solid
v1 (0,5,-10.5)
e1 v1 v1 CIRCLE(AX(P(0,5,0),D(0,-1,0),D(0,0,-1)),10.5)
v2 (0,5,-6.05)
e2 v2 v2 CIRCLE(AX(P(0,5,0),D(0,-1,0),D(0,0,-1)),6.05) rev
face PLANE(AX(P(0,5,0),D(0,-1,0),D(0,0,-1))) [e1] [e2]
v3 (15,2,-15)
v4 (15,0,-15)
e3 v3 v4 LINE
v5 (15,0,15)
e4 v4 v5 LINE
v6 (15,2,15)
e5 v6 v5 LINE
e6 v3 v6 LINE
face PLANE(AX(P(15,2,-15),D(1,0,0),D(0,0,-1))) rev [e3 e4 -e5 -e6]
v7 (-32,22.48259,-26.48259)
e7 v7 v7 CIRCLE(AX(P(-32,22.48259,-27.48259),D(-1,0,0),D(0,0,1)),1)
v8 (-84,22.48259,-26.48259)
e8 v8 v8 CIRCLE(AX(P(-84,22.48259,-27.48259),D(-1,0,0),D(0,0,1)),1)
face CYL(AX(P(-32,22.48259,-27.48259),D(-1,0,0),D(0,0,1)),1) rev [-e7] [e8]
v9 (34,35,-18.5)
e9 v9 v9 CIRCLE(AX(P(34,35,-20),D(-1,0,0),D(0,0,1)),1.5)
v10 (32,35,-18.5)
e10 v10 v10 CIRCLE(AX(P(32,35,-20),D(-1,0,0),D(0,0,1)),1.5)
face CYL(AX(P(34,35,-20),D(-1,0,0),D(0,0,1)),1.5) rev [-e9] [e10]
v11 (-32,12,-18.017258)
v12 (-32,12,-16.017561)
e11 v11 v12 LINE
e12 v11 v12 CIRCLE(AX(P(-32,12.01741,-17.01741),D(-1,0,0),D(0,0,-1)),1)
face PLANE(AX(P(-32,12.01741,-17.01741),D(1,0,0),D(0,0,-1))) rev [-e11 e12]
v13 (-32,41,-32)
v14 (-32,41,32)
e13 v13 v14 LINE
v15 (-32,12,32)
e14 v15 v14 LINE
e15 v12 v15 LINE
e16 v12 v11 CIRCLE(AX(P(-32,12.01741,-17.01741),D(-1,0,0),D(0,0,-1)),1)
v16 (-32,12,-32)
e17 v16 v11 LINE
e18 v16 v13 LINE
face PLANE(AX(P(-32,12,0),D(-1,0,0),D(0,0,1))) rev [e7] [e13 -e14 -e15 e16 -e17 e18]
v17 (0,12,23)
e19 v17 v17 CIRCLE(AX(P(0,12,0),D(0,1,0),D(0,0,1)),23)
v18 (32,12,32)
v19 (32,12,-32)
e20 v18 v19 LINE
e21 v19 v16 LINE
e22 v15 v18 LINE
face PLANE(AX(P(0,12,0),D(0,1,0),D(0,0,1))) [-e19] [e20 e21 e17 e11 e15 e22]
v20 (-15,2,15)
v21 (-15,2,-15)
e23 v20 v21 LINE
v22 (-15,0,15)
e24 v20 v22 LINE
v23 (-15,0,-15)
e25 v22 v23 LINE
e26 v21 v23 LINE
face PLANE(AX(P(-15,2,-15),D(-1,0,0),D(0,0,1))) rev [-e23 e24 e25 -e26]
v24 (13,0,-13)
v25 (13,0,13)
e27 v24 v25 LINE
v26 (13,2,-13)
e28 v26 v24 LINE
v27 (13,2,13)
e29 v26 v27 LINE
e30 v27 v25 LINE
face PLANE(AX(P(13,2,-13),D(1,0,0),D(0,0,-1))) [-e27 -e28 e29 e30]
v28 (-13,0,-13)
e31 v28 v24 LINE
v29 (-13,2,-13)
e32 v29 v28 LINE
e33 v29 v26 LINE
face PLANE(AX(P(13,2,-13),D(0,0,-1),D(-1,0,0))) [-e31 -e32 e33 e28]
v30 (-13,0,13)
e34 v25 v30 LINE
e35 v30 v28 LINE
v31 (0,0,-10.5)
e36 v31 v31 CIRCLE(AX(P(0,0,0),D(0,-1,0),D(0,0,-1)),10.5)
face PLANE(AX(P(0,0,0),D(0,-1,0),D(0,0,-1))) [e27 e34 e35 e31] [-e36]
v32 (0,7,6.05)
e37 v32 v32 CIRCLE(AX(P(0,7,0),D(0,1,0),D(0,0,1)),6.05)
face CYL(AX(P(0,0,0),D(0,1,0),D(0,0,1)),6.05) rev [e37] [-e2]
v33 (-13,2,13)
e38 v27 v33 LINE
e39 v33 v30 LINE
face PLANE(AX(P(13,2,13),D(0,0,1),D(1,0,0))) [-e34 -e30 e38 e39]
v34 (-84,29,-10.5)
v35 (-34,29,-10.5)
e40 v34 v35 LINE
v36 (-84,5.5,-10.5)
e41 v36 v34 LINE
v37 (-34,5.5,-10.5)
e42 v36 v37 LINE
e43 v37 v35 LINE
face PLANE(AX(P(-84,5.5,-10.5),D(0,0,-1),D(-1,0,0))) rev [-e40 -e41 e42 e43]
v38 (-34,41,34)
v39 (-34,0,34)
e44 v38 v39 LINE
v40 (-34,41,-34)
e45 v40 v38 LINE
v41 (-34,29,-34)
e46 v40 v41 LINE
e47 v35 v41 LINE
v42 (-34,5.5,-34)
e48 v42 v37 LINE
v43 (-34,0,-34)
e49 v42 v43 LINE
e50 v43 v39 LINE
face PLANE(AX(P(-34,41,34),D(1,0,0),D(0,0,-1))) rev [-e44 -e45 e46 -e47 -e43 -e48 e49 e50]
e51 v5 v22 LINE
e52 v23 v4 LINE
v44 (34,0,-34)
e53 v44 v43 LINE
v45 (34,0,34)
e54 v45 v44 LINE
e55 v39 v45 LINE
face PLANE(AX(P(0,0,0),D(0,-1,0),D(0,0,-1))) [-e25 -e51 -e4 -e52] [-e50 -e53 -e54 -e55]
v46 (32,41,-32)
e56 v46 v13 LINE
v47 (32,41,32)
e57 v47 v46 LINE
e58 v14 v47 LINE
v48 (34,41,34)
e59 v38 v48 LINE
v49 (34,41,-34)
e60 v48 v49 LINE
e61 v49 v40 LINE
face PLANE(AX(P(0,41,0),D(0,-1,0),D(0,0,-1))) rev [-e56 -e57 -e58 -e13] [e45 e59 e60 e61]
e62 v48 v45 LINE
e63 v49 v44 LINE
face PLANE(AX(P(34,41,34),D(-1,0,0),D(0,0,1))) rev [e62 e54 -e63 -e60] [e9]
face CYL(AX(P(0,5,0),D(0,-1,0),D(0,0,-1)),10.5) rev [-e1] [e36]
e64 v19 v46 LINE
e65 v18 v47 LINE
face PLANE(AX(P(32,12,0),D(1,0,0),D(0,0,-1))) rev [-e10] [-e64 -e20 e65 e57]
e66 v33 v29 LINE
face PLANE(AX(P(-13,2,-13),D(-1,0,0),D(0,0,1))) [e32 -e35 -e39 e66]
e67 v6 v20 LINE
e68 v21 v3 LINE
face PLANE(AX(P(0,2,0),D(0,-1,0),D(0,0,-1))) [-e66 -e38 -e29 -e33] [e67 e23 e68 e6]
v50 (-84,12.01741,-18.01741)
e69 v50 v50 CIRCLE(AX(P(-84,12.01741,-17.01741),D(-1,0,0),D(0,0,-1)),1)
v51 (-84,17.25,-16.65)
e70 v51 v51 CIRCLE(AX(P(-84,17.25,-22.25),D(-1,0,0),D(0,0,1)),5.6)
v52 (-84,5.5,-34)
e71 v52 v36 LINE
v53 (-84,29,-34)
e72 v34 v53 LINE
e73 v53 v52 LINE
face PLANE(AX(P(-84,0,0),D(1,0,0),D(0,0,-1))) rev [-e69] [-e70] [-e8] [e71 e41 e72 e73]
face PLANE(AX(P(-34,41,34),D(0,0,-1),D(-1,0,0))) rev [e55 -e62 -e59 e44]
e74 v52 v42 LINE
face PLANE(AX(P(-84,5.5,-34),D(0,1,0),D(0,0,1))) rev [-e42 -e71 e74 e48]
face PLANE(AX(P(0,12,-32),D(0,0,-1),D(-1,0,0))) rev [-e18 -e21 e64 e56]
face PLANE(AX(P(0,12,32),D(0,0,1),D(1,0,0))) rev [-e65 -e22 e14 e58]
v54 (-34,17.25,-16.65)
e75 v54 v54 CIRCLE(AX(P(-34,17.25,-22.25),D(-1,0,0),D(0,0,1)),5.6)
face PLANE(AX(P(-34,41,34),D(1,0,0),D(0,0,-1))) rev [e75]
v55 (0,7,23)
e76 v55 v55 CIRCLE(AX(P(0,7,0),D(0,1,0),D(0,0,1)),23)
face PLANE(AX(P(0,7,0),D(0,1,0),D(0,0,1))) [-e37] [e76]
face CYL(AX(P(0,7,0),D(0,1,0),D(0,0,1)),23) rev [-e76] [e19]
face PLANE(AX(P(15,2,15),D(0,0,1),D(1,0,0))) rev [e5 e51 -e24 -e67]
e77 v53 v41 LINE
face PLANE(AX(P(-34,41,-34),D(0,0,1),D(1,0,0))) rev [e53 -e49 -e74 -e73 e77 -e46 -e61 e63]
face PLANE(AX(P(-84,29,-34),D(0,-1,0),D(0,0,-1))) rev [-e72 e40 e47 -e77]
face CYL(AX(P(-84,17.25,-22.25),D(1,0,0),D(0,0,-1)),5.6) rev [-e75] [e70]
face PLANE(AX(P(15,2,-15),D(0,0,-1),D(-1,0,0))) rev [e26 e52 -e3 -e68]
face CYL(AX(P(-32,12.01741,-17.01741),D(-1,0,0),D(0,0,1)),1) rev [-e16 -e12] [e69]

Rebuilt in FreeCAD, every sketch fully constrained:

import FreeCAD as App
import Part
import Sketcher
from FreeCAD import Vector
Q = App.Units.Quantity

doc = App.newDocument("Part")
body = doc.addObject("PartDesign::Body", "Body")

sketch1 = body.newObject("Sketcher::SketchObject", "Sketch")
sketch1.AttachmentSupport = (doc.getObject("XZ_Plane"), [""])
sketch1.MapMode = "FlatFace"
sketch1.addGeometry([
    Part.LineSegment(Vector(-34, -34, 0), Vector(-34, 34, 0)),
    Part.LineSegment(Vector(-34, 34, 0), Vector(34, 34, 0)),
    Part.LineSegment(Vector(34, 34, 0), Vector(34, -34, 0)),
    Part.LineSegment(Vector(34, -34, 0), Vector(-34, -34, 0)),
], False)
sketch1.addConstraint([
    Sketcher.Constraint("Coincident", 0, 2, 1, 1),
    Sketcher.Constraint("Coincident", 1, 2, 2, 1),
    Sketcher.Constraint("Coincident", 2, 2, 3, 1),
    Sketcher.Constraint("Coincident", 3, 2, 0, 1),
    Sketcher.Constraint("Vertical", 0),
    Sketcher.Constraint("Horizontal", 1),
    Sketcher.Constraint("Vertical", 2),
    Sketcher.Constraint("Horizontal", 3),
    Sketcher.Constraint("Symmetric", 0, 2, 2, 2, -1, 1),
    Sketcher.Constraint("Equal", 3, 0),
    Sketcher.Constraint("DistanceX", 1, 1, 1, 2, Q("68 mm")),
])
pad1 = body.newObject("PartDesign::Pad", "Pad")
pad1.Profile = sketch1
pad1.Length = 41
pad1.Reversed = True

sketch2 = body.newObject("Sketcher::SketchObject", "Sketch001")
sketch2.AttachmentSupport = (doc.getObject("XZ_Plane"), [""])
sketch2.MapMode = "FlatFace"
sketch2.AttachmentOffset = App.Placement(Vector(0, 0, -41), App.Rotation())
sketch2.addGeometry([
    Part.LineSegment(Vector(-32, -32, 0), Vector(-32, 32, 0)),
    Part.LineSegment(Vector(-32, 32, 0), Vector(32, 32, 0)),
    Part.LineSegment(Vector(32, 32, 0), Vector(32, -32, 0)),
    Part.LineSegment(Vector(32, -32, 0), Vector(-32, -32, 0)),
], False)
sketch2.addConstraint([
    Sketcher.Constraint("Coincident", 0, 2, 1, 1),
    Sketcher.Constraint("Coincident", 1, 2, 2, 1),
    Sketcher.Constraint("Coincident", 2, 2, 3, 1),
    Sketcher.Constraint("Coincident", 3, 2, 0, 1),
    Sketcher.Constraint("Vertical", 0),
    Sketcher.Constraint("Horizontal", 1),
    Sketcher.Constraint("Vertical", 2),
    Sketcher.Constraint("Horizontal", 3),
    Sketcher.Constraint("Symmetric", 0, 2, 2, 2, -1, 1),
    Sketcher.Constraint("Equal", 3, 0),
    Sketcher.Constraint("DistanceX", 1, 1, 1, 2, Q("64 mm")),
])
pocket1 = body.newObject("PartDesign::Pocket", "Pocket")
pocket1.Profile = sketch2
pocket1.Length = 29
pocket1.Reversed = True

sketch3 = body.newObject("Sketcher::SketchObject", "Sketch002")
sketch3.AttachmentSupport = (doc.getObject("XZ_Plane"), [""])
sketch3.MapMode = "FlatFace"
sketch3.AttachmentOffset = App.Placement(Vector(0, 0, -12), App.Rotation())
sketch3.addGeometry(Part.Circle(Vector(0, 0, 0), Vector(0, 0, 1), 23), False)
sketch3.addConstraint([
    Sketcher.Constraint("Coincident", 0, 3, -1, 1),
    Sketcher.Constraint("Diameter", 0, Q("46 mm")),
])
pocket2 = body.newObject("PartDesign::Pocket", "Pocket001")
pocket2.Profile = sketch3
pocket2.Length = 5
pocket2.Reversed = True

sketch4 = body.newObject("Sketcher::SketchObject", "Sketch003")
sketch4.AttachmentSupport = (doc.getObject("XZ_Plane"), [""])
sketch4.MapMode = "FlatFace"
sketch4.AttachmentOffset = App.Placement(Vector(0, 0, -7), App.Rotation())
sketch4.addGeometry(Part.Circle(Vector(0, 0, 0), Vector(0, 0, 1), 6.05), False)
sketch4.addConstraint([
    Sketcher.Constraint("Coincident", 0, 3, -1, 1),
    Sketcher.Constraint("Diameter", 0, Q("12.1 mm")),
])
pocket3 = body.newObject("PartDesign::Pocket", "Pocket002")
pocket3.Profile = sketch4
pocket3.Type = "ThroughAll"
pocket3.Reversed = True

sketch5 = body.newObject("Sketcher::SketchObject", "Sketch004")
sketch5.AttachmentSupport = (doc.getObject("XZ_Plane"), [""])
sketch5.MapMode = "FlatFace"
sketch5.addGeometry(Part.Circle(Vector(0, 0, 0), Vector(0, 0, 1), 10.5), False)
sketch5.addConstraint([
    Sketcher.Constraint("Coincident", 0, 3, -1, 1),
    Sketcher.Constraint("Diameter", 0, Q("21 mm")),
])
pocket4 = body.newObject("PartDesign::Pocket", "Pocket003")
pocket4.Profile = sketch5
pocket4.Length = 5

sketch6 = body.newObject("Sketcher::SketchObject", "Sketch005")
sketch6.AttachmentSupport = (doc.getObject("XZ_Plane"), [""])
sketch6.MapMode = "FlatFace"
sketch6.addGeometry([
    Part.LineSegment(Vector(15, -15, 0), Vector(15, 15, 0)),
    Part.LineSegment(Vector(15, 15, 0), Vector(-15, 15, 0)),
    Part.LineSegment(Vector(-15, 15, 0), Vector(-15, -15, 0)),
    Part.LineSegment(Vector(-15, -15, 0), Vector(15, -15, 0)),
    Part.LineSegment(Vector(-13, 13, 0), Vector(13, 13, 0)),
    Part.LineSegment(Vector(13, 13, 0), Vector(13, -13, 0)),
    Part.LineSegment(Vector(13, -13, 0), Vector(-13, -13, 0)),
    Part.LineSegment(Vector(-13, -13, 0), Vector(-13, 13, 0)),
], False)
sketch6.addConstraint([
    Sketcher.Constraint("Coincident", 0, 2, 1, 1),
    Sketcher.Constraint("Coincident", 1, 2, 2, 1),
    Sketcher.Constraint("Coincident", 2, 2, 3, 1),
    Sketcher.Constraint("Coincident", 3, 2, 0, 1),
    Sketcher.Constraint("Coincident", 4, 2, 5, 1),
    Sketcher.Constraint("Coincident", 5, 2, 6, 1),
    Sketcher.Constraint("Coincident", 6, 2, 7, 1),
    Sketcher.Constraint("Coincident", 7, 2, 4, 1),
    Sketcher.Constraint("Vertical", 0),
    Sketcher.Constraint("Horizontal", 1),
    Sketcher.Constraint("Vertical", 2),
    Sketcher.Constraint("Horizontal", 3),
    Sketcher.Constraint("Horizontal", 4),
    Sketcher.Constraint("Vertical", 5),
    Sketcher.Constraint("Horizontal", 6),
    Sketcher.Constraint("Vertical", 7),
    Sketcher.Constraint("Symmetric", 0, 2, 2, 2, -1, 1),
    Sketcher.Constraint("Symmetric", 4, 2, 6, 2, -1, 1),
    Sketcher.Constraint("Equal", 3, 0),
    Sketcher.Constraint("Equal", 6, 5),
    Sketcher.Constraint("DistanceX", 1, 2, 1, 1, Q("30 mm")),
    Sketcher.Constraint("DistanceX", 4, 1, 4, 2, Q("26 mm")),
])
pocket5 = body.newObject("PartDesign::Pocket", "Pocket004")
pocket5.Profile = sketch6
pocket5.Length = 2

sketch7 = body.newObject("Sketcher::SketchObject", "Sketch006")
sketch7.AttachmentSupport = (doc.getObject("YZ_Plane"), [""])
sketch7.MapMode = "FlatFace"
sketch7.AttachmentOffset = App.Placement(Vector(0, 0, 32), App.Rotation())
sketch7.addGeometry(Part.Circle(Vector(35, -20, 0), Vector(0, 0, 1), 1.5), False)
sketch7.addConstraint([
    Sketcher.Constraint("Diameter", 0, Q("3 mm")),
    Sketcher.Constraint("DistanceX", -1, 1, 0, 3, Q("35 mm")),
    Sketcher.Constraint("DistanceY", 0, 3, -1, 1, Q("20 mm")),
])
pocket6 = body.newObject("PartDesign::Pocket", "Pocket005")
pocket6.Profile = sketch7
pocket6.Type = "ThroughAll"
pocket6.Reversed = True

sketch8 = body.newObject("Sketcher::SketchObject", "Sketch007")
sketch8.AttachmentSupport = (doc.getObject("YZ_Plane"), [""])
sketch8.MapMode = "FlatFace"
sketch8.AttachmentOffset = App.Placement(Vector(0, 0, -34), App.Rotation())
sketch8.addGeometry([
    Part.LineSegment(Vector(29, -34, 0), Vector(5.5, -34, 0)),
    Part.LineSegment(Vector(5.5, -34, 0), Vector(5.5, -10.5, 0)),
    Part.LineSegment(Vector(5.5, -10.5, 0), Vector(29, -10.5, 0)),
    Part.LineSegment(Vector(29, -10.5, 0), Vector(29, -34, 0)),
    Part.Circle(Vector(17.25, -22.25, 0), Vector(0, 0, 1), 5.6),
], False)
sketch8.addConstraint([
    Sketcher.Constraint("Coincident", 0, 2, 1, 1),
    Sketcher.Constraint("Coincident", 1, 2, 2, 1),
    Sketcher.Constraint("Coincident", 2, 2, 3, 1),
    Sketcher.Constraint("Coincident", 3, 2, 0, 1),
    Sketcher.Constraint("Horizontal", 0),
    Sketcher.Constraint("Vertical", 1),
    Sketcher.Constraint("Horizontal", 2),
    Sketcher.Constraint("Vertical", 3),
    Sketcher.Constraint("Equal", 2, 1),
    Sketcher.Constraint("Diameter", 4, Q("11.2 mm")),
    Sketcher.Constraint("DistanceX", 0, 2, 0, 1, Q("23.5 mm")),
    Sketcher.Constraint("DistanceY", 0, 2, -1, 1, Q("34 mm")),
    Sketcher.Constraint("DistanceX", -1, 1, 2, 2, Q("29 mm")),
    Sketcher.Constraint("DistanceX", -1, 1, 4, 3, Q("17.25 mm")),
    Sketcher.Constraint("DistanceY", 4, 3, -1, 1, Q("22.25 mm")),
])
pad2 = body.newObject("PartDesign::Pad", "Pad001")
pad2.Profile = sketch8
pad2.Length = 50
pad2.Reversed = True

sketch9 = body.newObject("Sketcher::SketchObject", "Sketch008")
sketch9.AttachmentSupport = (doc.getObject("YZ_Plane"), [""])
sketch9.MapMode = "FlatFace"
sketch9.AttachmentOffset = App.Placement(Vector(0, 0, -84), App.Rotation())
sketch9.addGeometry([
    Part.Circle(Vector(22.48259, -27.48259, 0), Vector(0, 0, 1), 1),
    Part.Circle(Vector(12.01741, -17.01741, 0), Vector(0, 0, 1), 1),
], False)
sketch9.addConstraint([
    Sketcher.Constraint("Equal", 0, 1),
    Sketcher.Constraint("Diameter", 0, Q("2 mm")),
    Sketcher.Constraint("DistanceX", -1, 1, 0, 3, Q("22.48259 mm")),
    Sketcher.Constraint("DistanceY", 0, 3, -1, 1, Q("27.48259 mm")),
    Sketcher.Constraint("DistanceX", -1, 1, 1, 3, Q("12.01741 mm")),
    Sketcher.Constraint("DistanceY", 1, 3, -1, 1, Q("17.01741 mm")),
])
pocket7 = body.newObject("PartDesign::Pocket", "Pocket006")
pocket7.Profile = sketch9
pocket7.Length = 52
pocket7.Reversed = True

doc.recompute()
